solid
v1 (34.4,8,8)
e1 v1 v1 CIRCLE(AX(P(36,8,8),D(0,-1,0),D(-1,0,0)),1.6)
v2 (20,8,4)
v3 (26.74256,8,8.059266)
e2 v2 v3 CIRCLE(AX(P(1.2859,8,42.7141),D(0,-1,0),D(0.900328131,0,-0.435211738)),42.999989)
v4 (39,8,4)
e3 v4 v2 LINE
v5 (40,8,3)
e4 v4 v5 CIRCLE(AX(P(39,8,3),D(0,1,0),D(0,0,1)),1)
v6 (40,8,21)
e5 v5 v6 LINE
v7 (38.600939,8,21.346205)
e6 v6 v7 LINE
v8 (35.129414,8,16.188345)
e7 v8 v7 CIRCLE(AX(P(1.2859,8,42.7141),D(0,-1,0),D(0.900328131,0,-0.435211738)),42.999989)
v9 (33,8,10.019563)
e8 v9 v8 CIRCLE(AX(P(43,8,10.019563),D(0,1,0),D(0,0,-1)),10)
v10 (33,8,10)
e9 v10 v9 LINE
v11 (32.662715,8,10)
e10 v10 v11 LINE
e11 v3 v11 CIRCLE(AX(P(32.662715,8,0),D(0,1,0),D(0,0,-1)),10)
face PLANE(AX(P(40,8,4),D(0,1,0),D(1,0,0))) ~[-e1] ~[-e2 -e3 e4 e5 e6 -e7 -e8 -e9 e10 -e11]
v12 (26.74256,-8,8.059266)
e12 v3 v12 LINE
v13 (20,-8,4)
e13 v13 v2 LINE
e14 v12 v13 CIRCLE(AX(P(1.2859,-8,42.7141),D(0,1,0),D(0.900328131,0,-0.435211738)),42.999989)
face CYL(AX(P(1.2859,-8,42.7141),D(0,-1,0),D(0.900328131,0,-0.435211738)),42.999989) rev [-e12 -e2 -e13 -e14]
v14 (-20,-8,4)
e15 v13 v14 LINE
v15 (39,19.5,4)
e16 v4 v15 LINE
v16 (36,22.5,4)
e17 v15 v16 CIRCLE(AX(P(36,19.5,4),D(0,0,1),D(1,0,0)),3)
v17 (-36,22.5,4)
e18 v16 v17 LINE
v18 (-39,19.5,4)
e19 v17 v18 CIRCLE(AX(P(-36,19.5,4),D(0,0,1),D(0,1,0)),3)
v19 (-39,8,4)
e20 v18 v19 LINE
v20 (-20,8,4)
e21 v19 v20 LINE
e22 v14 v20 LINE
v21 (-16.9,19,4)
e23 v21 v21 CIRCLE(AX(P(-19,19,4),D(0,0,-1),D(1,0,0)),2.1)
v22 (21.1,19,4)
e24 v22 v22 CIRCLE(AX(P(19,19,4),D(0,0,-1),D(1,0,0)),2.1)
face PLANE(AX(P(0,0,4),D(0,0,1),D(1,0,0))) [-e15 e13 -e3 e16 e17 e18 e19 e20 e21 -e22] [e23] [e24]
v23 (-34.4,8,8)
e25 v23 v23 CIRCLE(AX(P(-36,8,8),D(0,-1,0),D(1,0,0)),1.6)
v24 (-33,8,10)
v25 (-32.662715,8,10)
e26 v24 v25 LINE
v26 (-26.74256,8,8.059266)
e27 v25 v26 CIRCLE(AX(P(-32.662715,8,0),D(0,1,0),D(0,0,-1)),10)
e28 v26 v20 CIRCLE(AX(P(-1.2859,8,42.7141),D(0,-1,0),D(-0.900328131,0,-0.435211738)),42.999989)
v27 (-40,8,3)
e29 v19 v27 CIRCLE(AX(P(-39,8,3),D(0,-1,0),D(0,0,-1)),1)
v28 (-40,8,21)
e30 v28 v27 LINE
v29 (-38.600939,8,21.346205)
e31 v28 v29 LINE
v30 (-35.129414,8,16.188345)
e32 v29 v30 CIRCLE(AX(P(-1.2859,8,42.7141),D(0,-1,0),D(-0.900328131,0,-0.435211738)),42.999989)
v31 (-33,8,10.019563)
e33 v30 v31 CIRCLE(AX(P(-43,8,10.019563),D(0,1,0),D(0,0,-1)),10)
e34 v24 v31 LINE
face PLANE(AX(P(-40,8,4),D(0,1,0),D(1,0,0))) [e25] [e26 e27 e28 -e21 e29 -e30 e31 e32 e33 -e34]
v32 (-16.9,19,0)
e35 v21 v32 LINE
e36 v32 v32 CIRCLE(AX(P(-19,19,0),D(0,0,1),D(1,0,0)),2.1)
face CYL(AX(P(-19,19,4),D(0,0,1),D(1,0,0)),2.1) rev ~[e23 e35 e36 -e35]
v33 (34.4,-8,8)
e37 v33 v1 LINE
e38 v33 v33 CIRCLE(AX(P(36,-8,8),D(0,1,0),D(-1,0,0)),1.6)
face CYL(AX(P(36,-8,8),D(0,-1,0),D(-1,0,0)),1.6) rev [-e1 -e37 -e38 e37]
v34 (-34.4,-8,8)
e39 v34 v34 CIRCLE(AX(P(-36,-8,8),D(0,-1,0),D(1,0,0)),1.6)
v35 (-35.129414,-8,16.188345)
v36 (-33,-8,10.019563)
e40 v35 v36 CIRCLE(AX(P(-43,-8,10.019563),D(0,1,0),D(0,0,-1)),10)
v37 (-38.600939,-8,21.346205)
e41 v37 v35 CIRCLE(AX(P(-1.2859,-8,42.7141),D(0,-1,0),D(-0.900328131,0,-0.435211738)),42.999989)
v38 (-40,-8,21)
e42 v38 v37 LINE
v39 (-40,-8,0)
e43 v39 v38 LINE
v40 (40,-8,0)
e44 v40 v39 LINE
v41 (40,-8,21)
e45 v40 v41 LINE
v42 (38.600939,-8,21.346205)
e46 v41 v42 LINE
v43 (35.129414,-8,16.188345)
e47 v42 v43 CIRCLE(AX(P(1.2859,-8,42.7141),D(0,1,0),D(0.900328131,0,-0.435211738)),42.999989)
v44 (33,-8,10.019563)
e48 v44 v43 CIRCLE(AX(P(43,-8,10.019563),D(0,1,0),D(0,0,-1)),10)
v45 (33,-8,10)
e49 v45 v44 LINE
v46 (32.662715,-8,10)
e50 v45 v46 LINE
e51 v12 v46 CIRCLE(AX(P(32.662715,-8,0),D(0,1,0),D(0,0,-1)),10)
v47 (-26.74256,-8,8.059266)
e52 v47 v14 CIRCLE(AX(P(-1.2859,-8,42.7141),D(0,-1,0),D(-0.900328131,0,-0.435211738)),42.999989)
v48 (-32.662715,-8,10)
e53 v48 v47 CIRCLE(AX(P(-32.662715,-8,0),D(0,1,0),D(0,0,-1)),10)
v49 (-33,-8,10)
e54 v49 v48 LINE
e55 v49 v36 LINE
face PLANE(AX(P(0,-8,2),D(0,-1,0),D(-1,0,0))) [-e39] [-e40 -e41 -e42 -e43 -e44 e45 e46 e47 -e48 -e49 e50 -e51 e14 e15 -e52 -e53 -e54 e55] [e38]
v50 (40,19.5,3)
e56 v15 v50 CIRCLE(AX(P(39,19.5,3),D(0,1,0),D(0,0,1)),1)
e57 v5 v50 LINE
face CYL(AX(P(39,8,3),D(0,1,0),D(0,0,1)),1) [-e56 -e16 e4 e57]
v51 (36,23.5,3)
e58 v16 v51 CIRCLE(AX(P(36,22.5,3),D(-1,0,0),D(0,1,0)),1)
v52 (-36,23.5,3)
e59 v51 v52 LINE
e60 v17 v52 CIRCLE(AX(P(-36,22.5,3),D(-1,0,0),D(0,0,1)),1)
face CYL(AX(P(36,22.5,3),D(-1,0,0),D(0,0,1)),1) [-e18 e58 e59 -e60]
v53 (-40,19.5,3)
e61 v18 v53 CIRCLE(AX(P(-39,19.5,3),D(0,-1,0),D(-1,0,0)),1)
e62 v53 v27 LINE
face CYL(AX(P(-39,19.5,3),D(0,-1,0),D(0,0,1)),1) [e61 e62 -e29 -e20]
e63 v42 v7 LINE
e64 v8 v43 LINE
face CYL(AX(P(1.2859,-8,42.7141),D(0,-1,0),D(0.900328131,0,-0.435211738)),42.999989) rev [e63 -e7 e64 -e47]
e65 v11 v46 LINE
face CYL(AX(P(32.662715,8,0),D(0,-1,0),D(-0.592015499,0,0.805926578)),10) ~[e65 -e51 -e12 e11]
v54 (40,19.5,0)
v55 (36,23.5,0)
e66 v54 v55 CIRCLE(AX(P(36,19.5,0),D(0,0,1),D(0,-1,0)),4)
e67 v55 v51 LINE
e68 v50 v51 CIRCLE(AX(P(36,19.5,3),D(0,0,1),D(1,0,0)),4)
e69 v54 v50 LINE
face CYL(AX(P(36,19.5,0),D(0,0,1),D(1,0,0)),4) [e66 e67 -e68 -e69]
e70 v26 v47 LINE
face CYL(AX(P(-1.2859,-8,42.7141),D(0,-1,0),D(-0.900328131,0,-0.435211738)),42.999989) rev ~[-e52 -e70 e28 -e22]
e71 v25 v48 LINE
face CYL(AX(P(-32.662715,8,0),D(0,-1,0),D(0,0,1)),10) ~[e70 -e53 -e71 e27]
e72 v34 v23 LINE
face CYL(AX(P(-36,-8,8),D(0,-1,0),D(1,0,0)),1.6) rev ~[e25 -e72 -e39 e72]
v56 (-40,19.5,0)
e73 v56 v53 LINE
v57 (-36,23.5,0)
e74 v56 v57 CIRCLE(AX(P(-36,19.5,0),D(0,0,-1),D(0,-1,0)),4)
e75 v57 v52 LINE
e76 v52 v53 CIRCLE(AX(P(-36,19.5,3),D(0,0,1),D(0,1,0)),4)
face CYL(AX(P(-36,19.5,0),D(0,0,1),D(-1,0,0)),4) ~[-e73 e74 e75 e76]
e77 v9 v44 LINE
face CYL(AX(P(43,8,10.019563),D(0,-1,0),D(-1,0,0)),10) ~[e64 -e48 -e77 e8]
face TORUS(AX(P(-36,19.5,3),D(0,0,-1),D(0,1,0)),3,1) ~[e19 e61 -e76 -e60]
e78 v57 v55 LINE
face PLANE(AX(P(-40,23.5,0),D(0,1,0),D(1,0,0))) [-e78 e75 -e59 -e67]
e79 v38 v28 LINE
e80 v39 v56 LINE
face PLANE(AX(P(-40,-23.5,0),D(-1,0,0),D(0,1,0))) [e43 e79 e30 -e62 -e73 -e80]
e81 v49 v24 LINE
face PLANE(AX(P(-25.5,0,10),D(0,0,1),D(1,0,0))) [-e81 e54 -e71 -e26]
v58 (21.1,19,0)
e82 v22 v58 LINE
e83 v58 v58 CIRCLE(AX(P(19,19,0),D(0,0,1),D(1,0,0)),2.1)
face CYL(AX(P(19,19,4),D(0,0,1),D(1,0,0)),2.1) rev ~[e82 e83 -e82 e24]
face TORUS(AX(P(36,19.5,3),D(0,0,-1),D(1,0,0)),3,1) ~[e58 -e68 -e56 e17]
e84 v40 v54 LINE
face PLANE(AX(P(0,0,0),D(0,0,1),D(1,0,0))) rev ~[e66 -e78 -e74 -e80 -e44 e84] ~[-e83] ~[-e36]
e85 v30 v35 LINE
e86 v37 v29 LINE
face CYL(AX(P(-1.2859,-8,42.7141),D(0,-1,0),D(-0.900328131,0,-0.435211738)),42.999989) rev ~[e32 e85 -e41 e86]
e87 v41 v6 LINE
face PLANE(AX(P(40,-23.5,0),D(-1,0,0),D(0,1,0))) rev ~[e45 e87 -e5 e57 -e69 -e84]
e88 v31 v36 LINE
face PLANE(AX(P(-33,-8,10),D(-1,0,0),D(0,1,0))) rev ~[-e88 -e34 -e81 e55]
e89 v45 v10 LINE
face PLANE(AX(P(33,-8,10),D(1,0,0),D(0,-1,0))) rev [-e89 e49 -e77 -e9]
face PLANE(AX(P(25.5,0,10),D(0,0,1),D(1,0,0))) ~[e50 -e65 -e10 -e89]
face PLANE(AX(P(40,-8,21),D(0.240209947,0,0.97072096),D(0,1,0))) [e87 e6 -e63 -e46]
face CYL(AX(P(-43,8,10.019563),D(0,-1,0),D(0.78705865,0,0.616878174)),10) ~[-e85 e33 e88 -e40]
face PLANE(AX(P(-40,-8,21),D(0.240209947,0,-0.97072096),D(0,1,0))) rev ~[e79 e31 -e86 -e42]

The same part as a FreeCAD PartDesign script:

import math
import FreeCAD as App
import Part
import Sketcher
from FreeCAD import Vector


def edges_at(feature, points):
    """Names of the edges that pass closest to the given points."""
    edges = feature.Shape.Edges
    near = lambda p: min(range(len(edges)), key=lambda i: edges[i].distToShape(Part.Vertex(*p))[0])
    return sorted({f"Edge{near(p) + 1}" for p in points})


def add_polygon(sketch, points):
    """Adds a closed chain of lines whose ends are joined by coincident constraints."""
    first, n = sketch.GeometryCount, len(points)
    for a, b in zip(points, points[1:] + points[:1]):
        sketch.addGeometry(Part.LineSegment(App.Vector(*a, 0), App.Vector(*b, 0)), False)
    for i in range(n):
        sketch.addConstraint(Sketcher.Constraint("Coincident", first + i, 2, first + (i + 1) % n, 1))

doc = App.newDocument("Part")
params = doc.addObject("Spreadsheet::Sheet", "Params")
for row, (alias, value) in enumerate([
    ("sketch1_width", "80 mm"),
    ("sketch1_height", "47 mm"),
    ("pad1_length", "4 mm"),
    ("sketch2_diameter", "4.2 mm"),
    ("sketch3_width", "20 mm"),
    ("sketch3_height", "16 mm"),
    ("pad2_length", "20 mm"),
    ("sketch4_diameter", "3.2 mm"),
    ("sketch5_width", "20 mm"),
    ("chamfer_size", "3 mm"),
    ("sketch6_width", "80 mm"),
    ("sketch6_height", "4 mm"),
    ("pocket4_length", "15.5 mm"),
    ("fillet_radius", "4 mm"),
    ("fillet2_radius", "1 mm"),
    ("sketch7_width", "15 mm"),
    ("sketch7_height", "16 mm"),
    ("pocket5_length", "9 mm"),
    ("fillet3_radius", "10 mm"),
], start=1):
    params.set(f"A{row}", alias)
    params.set(f"B{row}", "=" + value)
    params.setAlias(f"B{row}", alias)

body = doc.addObject("PartDesign::Body", "Body")

# Sketch on XY plane
sketch1 = body.newObject("Sketcher::SketchObject", "Sketch")
sketch1.AttachmentSupport = (doc.getObject("XY_Plane"), [""])
sketch1.MapMode = "FlatFace"
add_polygon(sketch1, [(-40, 24), (-40, -24), (40, -24), (40, 24)])  # lines 0-3
sketch1.addConstraint([
    Sketcher.Constraint("Vertical", 0),
    Sketcher.Constraint("Horizontal", 1),
    Sketcher.Constraint("Vertical", 2),
    Sketcher.Constraint("Horizontal", 3),
    Sketcher.Constraint("Symmetric", 0, 2, 2, 2, -1, 1),
    Sketcher.Constraint("DistanceX", 1, 1, 1, 2, 80.0),
    Sketcher.Constraint("DistanceY", 0, 2, 0, 1, 47.0),
])
sketch1.setExpression("Constraints[9]", "Params.sketch1_width")
sketch1.setExpression("Constraints[10]", "Params.sketch1_height")
pad1 = body.newObject("PartDesign::Pad", "Pad")
pad1.Profile = sketch1
pad1.setExpression("Length", "Params.pad1_length")

# Sketch on XY plane
sketch2 = body.newObject("Sketcher::SketchObject", "Sketch001")
sketch2.AttachmentSupport = (doc.getObject("XY_Plane"), [""])
sketch2.MapMode = "FlatFace"
sketch2.AttachmentOffset = App.Placement(Vector(0, 0, 4), App.Rotation())
sketch2.addGeometry([
    Part.Circle(Vector(-19, 19, 0), Vector(0, 0, 1), 2.1),
    Part.Circle(Vector(19, 19, 0), Vector(0, 0, 1), 2.1),
    Part.Circle(Vector(19, -19, 0), Vector(0, 0, 1), 2.1),
    Part.Circle(Vector(-19, -19, 0), Vector(0, 0, 1), 2.1),
], False)
sketch2.addConstraint([
    Sketcher.Constraint("Equal", 0, 1),
    Sketcher.Constraint("Equal", 1, 2),
    Sketcher.Constraint("Equal", 2, 3),
    Sketcher.Constraint("Symmetric", 0, 3, 2, 3, -1, 1),
    Sketcher.Constraint("Symmetric", 1, 3, 3, 3, -1, 1),
    Sketcher.Constraint("Symmetric", 0, 3, 1, 3, -2),
    Sketcher.Constraint("Diameter", 0, 4.2),
    Sketcher.Constraint("DistanceX", 0, 3, -1, 1, 19.0),
    Sketcher.Constraint("DistanceY", -1, 1, 0, 3, 19.0),
])
sketch2.setExpression("Constraints[6]", "Params.sketch2_diameter")
pocket1 = body.newObject("PartDesign::Pocket", "Pocket")
pocket1.Profile = sketch2
pocket1.Type = "ThroughAll"

# Sketch on XY plane
sketch3 = body.newObject("Sketcher::SketchObject", "Sketch002")
sketch3.AttachmentSupport = (doc.getObject("XY_Plane"), [""])
sketch3.MapMode = "FlatFace"
sketch3.AttachmentOffset = App.Placement(Vector(0, 0, 4), App.Rotation())
add_polygon(sketch3, [(-40, 8), (-40, -8), (-20, -8), (-20, 8)])  # lines 0-3
sketch3.addConstraint([
    Sketcher.Constraint("Vertical", 0),
    Sketcher.Constraint("Horizontal", 1),
    Sketcher.Constraint("Vertical", 2),
    Sketcher.Constraint("Horizontal", 3),
    Sketcher.Constraint("DistanceX", 1, 1, 1, 2, 20.0),
    Sketcher.Constraint("DistanceY", 0, 2, 0, 1, 16.0),
    Sketcher.Constraint("DistanceX", 0, 2, -1, 1, 40.0),
    Sketcher.Constraint("DistanceY", 0, 2, -1, 1, 8.0),
])
sketch3.setExpression("Constraints[8]", "Params.sketch3_width")
sketch3.setExpression("Constraints[9]", "Params.sketch3_height")
pad2 = body.newObject("PartDesign::Pad", "Pad001")
pad2.Profile = sketch3
pad2.setExpression("Length", "Params.pad2_length")
doc.recompute()

mirrored = body.newObject("PartDesign::Mirrored", "Mirrored")
mirrored.Originals = [pad2]
mirrored.MirrorPlane = (doc.getObject("YZ_Plane"), [""])
body.Tip = mirrored

# Sketch on XZ plane
sketch4 = body.newObject("Sketcher::SketchObject", "Sketch003")
sketch4.AttachmentSupport = (doc.getObject("XZ_Plane"), [""])
sketch4.MapMode = "FlatFace"
sketch4.AttachmentOffset = App.Placement(Vector(0, 0, 8), App.Rotation())
sketch4.addGeometry(Part.Circle(Vector(-36, 8, 0), Vector(0, 0, 1), 1.6), False)
sketch4.addConstraint([
    Sketcher.Constraint("Diameter", 0, 3.2),
    Sketcher.Constraint("DistanceX", 0, 3, -1, 1, 36.0),
    Sketcher.Constraint("DistanceY", -1, 1, 0, 3, 8.0),
])
sketch4.setExpression("Constraints[0]", "Params.sketch4_diameter")
pocket2 = body.newObject("PartDesign::Pocket", "Pocket001")
pocket2.Profile = sketch4
pocket2.Type = "ThroughAll"
doc.recompute()

mirrored2 = body.newObject("PartDesign::Mirrored", "Mirrored001")
mirrored2.Originals = [pocket2]
mirrored2.MirrorPlane = (doc.getObject("YZ_Plane"), [""])
body.Tip = mirrored2

# Sketch on XZ plane
sketch5 = body.newObject("Sketcher::SketchObject", "Sketch004")
sketch5.AttachmentSupport = (doc.getObject("XZ_Plane"), [""])
sketch5.MapMode = "FlatFace"
sketch5.AttachmentOffset = App.Placement(Vector(0, 0, 8), App.Rotation())
sketch5.addGeometry([
    Part.ArcOfCircle(Part.Circle(Vector(-1, 43, 0), Vector(0, 0, 1), 43), math.radians(-154), math.radians(-116)),
    Part.LineSegment(Vector(-20, 4, 0), Vector(-20, 24, 0)),
    Part.LineSegment(Vector(-20, 24, 0), Vector(-40, 24, 0)),
], False)
sketch5.addConstraint([
    Sketcher.Constraint("Coincident", 0, 2, 1, 1),
    Sketcher.Constraint("Coincident", 1, 2, 2, 1),
    Sketcher.Constraint("Coincident", 2, 2, 0, 1),
    Sketcher.Constraint("Vertical", 1),
    Sketcher.Constraint("Horizontal", 2),
    Sketcher.Constraint("Equal", 2, 1),
    Sketcher.Constraint("DistanceX", 2, 2, 2, 1, 20.0),
    Sketcher.Constraint("DistanceX", 0, 2, -1, 1, 20.0),
    Sketcher.Constraint("DistanceY", -1, 1, 0, 2, 4.0),
    Sketcher.Constraint("Radius", 0, 42.999989),
])
sketch5.setExpression("Constraints[6]", "Params.sketch5_width")
pocket3 = body.newObject("PartDesign::Pocket", "Pocket002")
pocket3.Profile = sketch5
pocket3.Type = "ThroughAll"
doc.recompute()

mirrored3 = body.newObject("PartDesign::Mirrored", "Mirrored002")
mirrored3.Originals = [pocket3]
mirrored3.MirrorPlane = (doc.getObject("YZ_Plane"), [""])
body.Tip = mirrored3
doc.recompute()

chamfer = body.newObject("PartDesign::Chamfer", "Chamfer")
chamfer.Base = (mirrored3, edges_at(mirrored3, [(-40, 0, 24), (40, 0, 24)]))
chamfer.setExpression("Size", "Params.chamfer_size")

# Sketch on XZ plane
sketch6 = body.newObject("Sketcher::SketchObject", "Sketch005")
sketch6.AttachmentSupport = (doc.getObject("XZ_Plane"), [""])
sketch6.MapMode = "FlatFace"
sketch6.AttachmentOffset = App.Placement(Vector(0, 0, 23.5), App.Rotation())
add_polygon(sketch6, [(40, 0), (40, 4), (-40, 4), (-40, 0)])  # lines 0-3
sketch6.addConstraint([
    Sketcher.Constraint("Vertical", 0),
    Sketcher.Constraint("Horizontal", 1),
    Sketcher.Constraint("Vertical", 2),
    Sketcher.Constraint("Horizontal", 3),
    Sketcher.Constraint("Symmetric", 2, 2, 3, 2, -1, 1),
    Sketcher.Constraint("DistanceX", 1, 2, 1, 1, 80.0),
    Sketcher.Constraint("DistanceY", 0, 1, 0, 2, 4.0),
])
sketch6.setExpression("Constraints[9]", "Params.sketch6_width")
sketch6.setExpression("Constraints[10]", "Params.sketch6_height")
pocket4 = body.newObject("PartDesign::Pocket", "Pocket003")
pocket4.Profile = sketch6
pocket4.setExpression("Length", "Params.pocket4_length")
doc.recompute()

fillet = body.newObject("PartDesign::Fillet", "Fillet")
fillet.Base = (pocket4, edges_at(pocket4, [(-40, 23.5, 2), (40, 23.5, 2)]))
fillet.setExpression("Radius", "Params.fillet_radius")
doc.recompute()

fillet2 = body.newObject("PartDesign::Fillet", "Fillet001")
fillet2.Base = (fillet, edges_at(fillet, [(40, 13.75, 4)]))
fillet2.setExpression("Radius", "Params.fillet2_radius")

# Sketch on XY plane
sketch7 = body.newObject("Sketcher::SketchObject", "Sketch006")
sketch7.AttachmentSupport = (doc.getObject("XY_Plane"), [""])
sketch7.MapMode = "FlatFace"
sketch7.AttachmentOffset = App.Placement(Vector(0, 0, 10), App.Rotation())
add_polygon(sketch7, [(-33, 8), (-33, -8), (-18, -8), (-18, 8)])  # lines 0-3
sketch7.addConstraint([
    Sketcher.Constraint("Vertical", 0),
    Sketcher.Constraint("Horizontal", 1),
    Sketcher.Constraint("Vertical", 2),
    Sketcher.Constraint("Horizontal", 3),
    Sketcher.Constraint("DistanceX", 1, 1, 1, 2, 15.0),
    Sketcher.Constraint("DistanceY", 0, 2, 0, 1, 16.0),
    Sketcher.Constraint("DistanceX", 0, 2, -1, 1, 33.0),
    Sketcher.Constraint("DistanceY", 0, 2, -1, 1, 8.0),
])
sketch7.setExpression("Constraints[8]", "Params.sketch7_width")
sketch7.setExpression("Constraints[9]", "Params.sketch7_height")
pocket5 = body.newObject("PartDesign::Pocket", "Pocket004")
pocket5.Profile = sketch7
pocket5.setExpression("Length", "Params.pocket5_length")
pocket5.Reversed = True
doc.recompute()

mirrored4 = body.newObject("PartDesign::Mirrored", "Mirrored003")
mirrored4.Originals = [pocket5]
mirrored4.MirrorPlane = (doc.getObject("YZ_Plane"), [""])
body.Tip = mirrored4
doc.recompute()

fillet3 = body.newObject("PartDesign::Fillet", "Fillet002")
fillet3.Base = (mirrored4, edges_at(mirrored4, [
    (33, 0, 13.676),
    (29.193, 0, 10),
    (-33, 0, 13.676),
    (-29.193, 0, 10),
]))
fillet3.setExpression("Radius", "Params.fillet3_radius")

doc.recompute()
